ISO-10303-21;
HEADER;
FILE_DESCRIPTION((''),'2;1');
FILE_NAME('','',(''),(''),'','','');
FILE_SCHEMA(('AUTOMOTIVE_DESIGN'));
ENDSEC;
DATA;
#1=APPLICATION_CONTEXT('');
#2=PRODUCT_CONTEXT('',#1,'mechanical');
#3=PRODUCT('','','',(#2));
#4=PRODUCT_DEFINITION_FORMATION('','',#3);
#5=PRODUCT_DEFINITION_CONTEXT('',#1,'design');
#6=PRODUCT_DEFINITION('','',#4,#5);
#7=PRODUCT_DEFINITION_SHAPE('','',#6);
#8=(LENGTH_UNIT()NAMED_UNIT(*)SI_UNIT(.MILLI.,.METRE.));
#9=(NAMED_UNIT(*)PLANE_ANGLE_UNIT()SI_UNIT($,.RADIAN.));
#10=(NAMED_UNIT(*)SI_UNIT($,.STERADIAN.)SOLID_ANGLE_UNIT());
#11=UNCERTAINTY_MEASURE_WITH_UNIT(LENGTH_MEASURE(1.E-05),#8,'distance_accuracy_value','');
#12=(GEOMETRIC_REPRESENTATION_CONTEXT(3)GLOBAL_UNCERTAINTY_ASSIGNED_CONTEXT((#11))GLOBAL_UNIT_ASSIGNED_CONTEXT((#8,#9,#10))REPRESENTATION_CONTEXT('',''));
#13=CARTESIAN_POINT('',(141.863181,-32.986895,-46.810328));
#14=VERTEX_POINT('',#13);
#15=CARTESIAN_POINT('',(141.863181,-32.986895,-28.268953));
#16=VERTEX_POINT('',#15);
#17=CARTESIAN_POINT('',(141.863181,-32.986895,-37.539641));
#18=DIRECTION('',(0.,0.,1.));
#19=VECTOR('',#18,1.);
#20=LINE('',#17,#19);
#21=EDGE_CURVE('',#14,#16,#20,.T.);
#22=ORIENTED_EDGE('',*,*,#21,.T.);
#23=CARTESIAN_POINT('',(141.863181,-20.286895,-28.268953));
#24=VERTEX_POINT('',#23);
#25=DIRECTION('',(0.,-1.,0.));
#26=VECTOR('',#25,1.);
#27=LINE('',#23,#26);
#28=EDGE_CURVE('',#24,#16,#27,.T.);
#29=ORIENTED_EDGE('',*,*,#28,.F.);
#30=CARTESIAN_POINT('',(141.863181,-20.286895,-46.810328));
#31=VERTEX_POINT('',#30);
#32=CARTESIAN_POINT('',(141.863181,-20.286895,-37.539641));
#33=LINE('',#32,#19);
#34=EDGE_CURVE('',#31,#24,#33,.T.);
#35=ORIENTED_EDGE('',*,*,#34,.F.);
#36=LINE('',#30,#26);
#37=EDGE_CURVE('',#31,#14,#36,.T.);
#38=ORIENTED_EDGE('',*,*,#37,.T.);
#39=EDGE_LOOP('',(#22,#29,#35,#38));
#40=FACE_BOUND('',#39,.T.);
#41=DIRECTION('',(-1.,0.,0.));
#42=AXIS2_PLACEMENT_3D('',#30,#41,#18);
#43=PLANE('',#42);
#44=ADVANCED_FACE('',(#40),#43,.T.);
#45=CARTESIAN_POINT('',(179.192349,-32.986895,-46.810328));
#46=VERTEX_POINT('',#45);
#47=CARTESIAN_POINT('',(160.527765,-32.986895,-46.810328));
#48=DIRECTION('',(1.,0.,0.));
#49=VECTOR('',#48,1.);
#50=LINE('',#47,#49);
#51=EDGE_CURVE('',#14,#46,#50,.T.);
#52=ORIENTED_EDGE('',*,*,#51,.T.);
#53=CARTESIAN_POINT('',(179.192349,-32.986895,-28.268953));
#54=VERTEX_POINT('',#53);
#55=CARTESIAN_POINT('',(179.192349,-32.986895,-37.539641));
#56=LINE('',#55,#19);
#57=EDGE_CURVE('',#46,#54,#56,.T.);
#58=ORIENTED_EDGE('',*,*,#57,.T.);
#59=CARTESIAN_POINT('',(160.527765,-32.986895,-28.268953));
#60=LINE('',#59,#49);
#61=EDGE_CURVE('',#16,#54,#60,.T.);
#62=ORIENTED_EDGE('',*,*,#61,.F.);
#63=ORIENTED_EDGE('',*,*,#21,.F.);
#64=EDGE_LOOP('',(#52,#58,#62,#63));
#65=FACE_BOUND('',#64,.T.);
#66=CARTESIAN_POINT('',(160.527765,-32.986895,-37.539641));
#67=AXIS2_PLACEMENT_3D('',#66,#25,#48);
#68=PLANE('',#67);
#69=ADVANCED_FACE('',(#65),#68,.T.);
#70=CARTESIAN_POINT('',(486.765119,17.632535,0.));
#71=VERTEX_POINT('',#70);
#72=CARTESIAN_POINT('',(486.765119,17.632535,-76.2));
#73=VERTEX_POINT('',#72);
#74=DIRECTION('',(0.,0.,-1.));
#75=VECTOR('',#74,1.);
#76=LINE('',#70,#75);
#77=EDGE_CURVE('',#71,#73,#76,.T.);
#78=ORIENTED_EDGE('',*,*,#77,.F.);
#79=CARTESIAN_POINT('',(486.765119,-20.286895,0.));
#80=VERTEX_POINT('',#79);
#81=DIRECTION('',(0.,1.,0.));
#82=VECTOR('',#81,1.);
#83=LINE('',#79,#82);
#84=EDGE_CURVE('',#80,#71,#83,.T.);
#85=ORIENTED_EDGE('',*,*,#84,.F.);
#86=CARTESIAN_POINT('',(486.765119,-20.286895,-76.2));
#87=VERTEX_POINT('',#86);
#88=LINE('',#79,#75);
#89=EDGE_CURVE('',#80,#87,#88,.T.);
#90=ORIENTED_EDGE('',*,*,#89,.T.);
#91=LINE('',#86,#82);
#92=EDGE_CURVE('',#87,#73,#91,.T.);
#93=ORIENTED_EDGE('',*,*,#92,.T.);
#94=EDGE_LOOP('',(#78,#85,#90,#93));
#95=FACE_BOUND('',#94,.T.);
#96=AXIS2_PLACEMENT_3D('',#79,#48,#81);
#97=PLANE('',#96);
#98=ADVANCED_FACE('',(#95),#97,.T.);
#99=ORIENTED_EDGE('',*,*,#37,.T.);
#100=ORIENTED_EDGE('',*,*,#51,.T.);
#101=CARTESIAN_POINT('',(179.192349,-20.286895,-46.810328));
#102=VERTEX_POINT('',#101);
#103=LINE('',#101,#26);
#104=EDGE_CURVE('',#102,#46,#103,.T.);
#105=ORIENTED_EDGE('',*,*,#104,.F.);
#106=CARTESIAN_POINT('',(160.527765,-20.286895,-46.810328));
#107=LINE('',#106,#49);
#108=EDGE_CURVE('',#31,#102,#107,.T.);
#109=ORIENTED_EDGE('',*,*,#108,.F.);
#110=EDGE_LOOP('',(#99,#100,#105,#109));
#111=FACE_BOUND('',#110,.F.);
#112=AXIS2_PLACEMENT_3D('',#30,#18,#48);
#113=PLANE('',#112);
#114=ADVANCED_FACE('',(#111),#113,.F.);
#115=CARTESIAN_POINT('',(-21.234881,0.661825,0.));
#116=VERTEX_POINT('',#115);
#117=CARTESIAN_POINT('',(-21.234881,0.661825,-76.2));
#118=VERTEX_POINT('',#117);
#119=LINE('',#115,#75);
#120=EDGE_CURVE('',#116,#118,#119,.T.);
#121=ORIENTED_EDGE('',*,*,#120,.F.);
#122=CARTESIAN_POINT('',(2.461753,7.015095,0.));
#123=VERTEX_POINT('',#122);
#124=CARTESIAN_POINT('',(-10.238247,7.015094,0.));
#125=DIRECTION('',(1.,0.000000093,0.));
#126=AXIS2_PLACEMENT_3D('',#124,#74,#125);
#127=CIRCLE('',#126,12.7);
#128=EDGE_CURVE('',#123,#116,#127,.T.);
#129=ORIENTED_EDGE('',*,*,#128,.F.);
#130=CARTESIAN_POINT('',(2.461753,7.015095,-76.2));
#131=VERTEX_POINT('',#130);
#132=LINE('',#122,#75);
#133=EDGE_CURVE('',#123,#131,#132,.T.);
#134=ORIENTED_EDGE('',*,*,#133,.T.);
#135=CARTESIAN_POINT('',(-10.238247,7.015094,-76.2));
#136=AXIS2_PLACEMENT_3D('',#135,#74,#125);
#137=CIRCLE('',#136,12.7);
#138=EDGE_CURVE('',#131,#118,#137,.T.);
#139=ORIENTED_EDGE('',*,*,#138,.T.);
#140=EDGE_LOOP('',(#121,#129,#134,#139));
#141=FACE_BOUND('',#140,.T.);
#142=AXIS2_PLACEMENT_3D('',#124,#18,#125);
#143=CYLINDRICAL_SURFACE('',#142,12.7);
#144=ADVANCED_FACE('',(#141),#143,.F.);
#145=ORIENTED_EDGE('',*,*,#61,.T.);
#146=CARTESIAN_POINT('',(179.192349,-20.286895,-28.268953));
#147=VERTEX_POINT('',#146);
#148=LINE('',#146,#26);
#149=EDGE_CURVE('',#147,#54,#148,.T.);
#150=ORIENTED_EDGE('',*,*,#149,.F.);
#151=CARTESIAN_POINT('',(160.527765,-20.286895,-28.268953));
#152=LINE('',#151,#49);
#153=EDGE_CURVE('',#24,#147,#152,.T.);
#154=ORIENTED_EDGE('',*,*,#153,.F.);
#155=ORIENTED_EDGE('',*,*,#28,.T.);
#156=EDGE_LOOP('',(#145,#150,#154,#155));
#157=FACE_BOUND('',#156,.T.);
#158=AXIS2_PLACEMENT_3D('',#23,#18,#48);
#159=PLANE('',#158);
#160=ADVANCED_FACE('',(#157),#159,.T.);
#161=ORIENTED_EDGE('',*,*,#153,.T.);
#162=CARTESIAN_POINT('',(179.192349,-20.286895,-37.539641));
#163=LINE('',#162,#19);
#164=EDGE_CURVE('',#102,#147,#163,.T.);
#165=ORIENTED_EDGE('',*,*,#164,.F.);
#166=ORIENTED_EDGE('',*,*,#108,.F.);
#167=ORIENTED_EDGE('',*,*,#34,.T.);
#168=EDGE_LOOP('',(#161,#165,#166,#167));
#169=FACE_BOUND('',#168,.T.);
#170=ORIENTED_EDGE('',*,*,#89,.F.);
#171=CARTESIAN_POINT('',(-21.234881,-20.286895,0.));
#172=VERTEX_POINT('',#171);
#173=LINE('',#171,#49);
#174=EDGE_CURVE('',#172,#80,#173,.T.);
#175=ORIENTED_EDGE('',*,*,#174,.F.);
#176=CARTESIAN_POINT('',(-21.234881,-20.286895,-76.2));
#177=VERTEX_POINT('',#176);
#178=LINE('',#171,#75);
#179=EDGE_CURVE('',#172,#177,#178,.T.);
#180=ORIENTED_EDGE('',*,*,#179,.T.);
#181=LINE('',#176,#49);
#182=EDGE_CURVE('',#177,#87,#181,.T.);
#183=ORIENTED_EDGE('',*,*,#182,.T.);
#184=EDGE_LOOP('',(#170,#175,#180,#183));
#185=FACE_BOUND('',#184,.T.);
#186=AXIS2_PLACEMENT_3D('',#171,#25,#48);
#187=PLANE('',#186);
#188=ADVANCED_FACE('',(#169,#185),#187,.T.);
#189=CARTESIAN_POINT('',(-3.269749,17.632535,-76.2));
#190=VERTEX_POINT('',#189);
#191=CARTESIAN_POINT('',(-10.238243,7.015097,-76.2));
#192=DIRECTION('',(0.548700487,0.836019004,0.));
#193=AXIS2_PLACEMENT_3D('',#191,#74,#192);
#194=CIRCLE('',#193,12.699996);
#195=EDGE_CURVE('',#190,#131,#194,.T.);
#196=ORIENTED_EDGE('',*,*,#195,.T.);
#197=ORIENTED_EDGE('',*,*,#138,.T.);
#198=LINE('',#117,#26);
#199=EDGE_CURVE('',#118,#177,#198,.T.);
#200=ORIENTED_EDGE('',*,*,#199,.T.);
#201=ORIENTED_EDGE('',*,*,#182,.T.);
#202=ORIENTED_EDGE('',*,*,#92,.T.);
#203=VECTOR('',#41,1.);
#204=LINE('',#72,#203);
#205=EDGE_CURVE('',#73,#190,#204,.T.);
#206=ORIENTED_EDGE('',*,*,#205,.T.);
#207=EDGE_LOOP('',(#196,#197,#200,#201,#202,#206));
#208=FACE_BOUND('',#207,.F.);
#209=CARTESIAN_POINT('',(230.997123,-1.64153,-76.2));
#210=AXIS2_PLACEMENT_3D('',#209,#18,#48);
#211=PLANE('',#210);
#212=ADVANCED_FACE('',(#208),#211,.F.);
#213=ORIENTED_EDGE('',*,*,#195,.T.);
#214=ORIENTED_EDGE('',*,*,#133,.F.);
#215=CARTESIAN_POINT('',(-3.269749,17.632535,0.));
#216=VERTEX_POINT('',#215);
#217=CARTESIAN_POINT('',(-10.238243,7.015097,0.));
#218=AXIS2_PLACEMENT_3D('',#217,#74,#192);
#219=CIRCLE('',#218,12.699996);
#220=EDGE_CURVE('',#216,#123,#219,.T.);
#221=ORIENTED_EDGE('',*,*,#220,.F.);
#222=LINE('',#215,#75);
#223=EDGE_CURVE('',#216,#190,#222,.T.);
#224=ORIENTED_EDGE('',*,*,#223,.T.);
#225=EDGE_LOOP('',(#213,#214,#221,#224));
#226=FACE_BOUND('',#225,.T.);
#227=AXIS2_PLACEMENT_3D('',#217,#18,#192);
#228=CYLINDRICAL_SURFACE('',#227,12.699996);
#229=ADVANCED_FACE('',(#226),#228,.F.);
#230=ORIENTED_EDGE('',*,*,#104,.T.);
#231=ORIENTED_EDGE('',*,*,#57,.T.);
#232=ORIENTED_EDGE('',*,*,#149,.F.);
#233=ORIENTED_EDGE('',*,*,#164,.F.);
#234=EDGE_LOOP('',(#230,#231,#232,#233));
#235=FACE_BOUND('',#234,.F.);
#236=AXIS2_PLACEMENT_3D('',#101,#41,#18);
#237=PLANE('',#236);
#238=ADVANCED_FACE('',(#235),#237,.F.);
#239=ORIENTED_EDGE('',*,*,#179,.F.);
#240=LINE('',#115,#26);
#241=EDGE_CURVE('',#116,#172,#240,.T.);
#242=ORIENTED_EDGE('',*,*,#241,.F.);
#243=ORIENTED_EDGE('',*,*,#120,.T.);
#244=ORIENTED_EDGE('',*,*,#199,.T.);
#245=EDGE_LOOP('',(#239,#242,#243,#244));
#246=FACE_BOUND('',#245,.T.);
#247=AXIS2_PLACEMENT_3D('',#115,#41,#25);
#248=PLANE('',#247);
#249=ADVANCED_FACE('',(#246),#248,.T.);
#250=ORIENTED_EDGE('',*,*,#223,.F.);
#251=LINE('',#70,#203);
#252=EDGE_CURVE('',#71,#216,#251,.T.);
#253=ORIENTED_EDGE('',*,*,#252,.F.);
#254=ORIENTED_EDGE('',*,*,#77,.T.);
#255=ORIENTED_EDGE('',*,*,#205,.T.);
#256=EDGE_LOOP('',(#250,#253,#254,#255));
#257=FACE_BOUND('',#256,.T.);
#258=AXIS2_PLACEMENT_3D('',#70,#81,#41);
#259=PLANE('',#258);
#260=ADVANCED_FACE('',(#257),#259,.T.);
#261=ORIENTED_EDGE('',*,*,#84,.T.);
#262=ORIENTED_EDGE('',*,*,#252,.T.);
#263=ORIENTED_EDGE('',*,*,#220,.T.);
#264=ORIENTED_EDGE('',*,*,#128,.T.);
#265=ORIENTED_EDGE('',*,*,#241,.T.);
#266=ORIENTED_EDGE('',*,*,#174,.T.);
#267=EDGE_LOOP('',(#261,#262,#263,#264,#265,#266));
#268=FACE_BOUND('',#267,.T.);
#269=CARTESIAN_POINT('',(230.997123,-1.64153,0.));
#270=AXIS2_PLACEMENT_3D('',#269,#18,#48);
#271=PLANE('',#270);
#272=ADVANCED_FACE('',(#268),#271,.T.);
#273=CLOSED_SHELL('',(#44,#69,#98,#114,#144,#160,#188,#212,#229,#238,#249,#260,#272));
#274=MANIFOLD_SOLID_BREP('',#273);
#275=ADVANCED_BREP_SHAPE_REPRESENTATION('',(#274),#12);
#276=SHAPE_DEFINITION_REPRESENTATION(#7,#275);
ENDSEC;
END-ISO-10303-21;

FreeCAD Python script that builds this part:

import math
import FreeCAD as App
import Part
import Sketcher
from FreeCAD import Vector
Q = App.Units.Quantity

doc = App.newDocument("Part")
body = doc.addObject("PartDesign::Body", "Body")

sketch1 = doc.addObject("Sketcher::SketchObject", "Sketch")
body.addObject(sketch1)
sketch1.AttachmentSupport = (doc.XY_Plane, [""])
sketch1.MapMode = "FlatFace"
sketch1.addGeometry(Part.LineSegment(Vector(486.765119, 17.632535, 0), Vector(-3.269749, 17.632535, 0)), False)
sketch1.addGeometry(Part.ArcOfCircle(Part.Circle(Vector(-10.238243, 7.015097, 0), Vector(0, 0, 1), 12.699996), math.radians(-0.000009), math.radians(56.722093)), False)
sketch1.addGeometry(Part.ArcOfCircle(Part.Circle(Vector(-10.238247, 7.015094, 0), Vector(0, 0, 1), 12.7), math.radians(-149.982969), math.radians(0.000005)), False)
sketch1.addGeometry(Part.LineSegment(Vector(-21.234881, 0.661825, 0), Vector(-21.234881, -20.286895, 0)), False)
sketch1.addGeometry(Part.LineSegment(Vector(-21.234881, -20.286895, 0), Vector(486.765119, -20.286895, 0)), False)
sketch1.addGeometry(Part.LineSegment(Vector(486.765119, -20.286895, 0), Vector(486.765119, 17.632535, 0)), False)
sketch1.addConstraint(Sketcher.Constraint("Coincident", 0, 2, 1, 2))
sketch1.addConstraint(Sketcher.Constraint("Tangent", 1, 1, 2, 2))
sketch1.addConstraint(Sketcher.Constraint("Coincident", 2, 1, 3, 1))
sketch1.addConstraint(Sketcher.Constraint("Coincident", 3, 2, 4, 1))
sketch1.addConstraint(Sketcher.Constraint("Coincident", 4, 2, 5, 1))
sketch1.addConstraint(Sketcher.Constraint("Coincident", 5, 2, 0, 1))
sketch1.addConstraint(Sketcher.Constraint("Horizontal", 0))
sketch1.addConstraint(Sketcher.Constraint("Vertical", 3))
sketch1.addConstraint(Sketcher.Constraint("Horizontal", 4))
sketch1.addConstraint(Sketcher.Constraint("Vertical", 5))
sketch1.addConstraint(Sketcher.Constraint("Horizontal", 2, 3, 1, 1))
sketch1.addConstraint(Sketcher.Constraint("Radius", 1, Q("0.4999998 in")))
sketch1.addConstraint(Sketcher.Constraint("Radius", 2, Q("0.5 in")))
sketch1.addConstraint(Sketcher.Constraint("DistanceX", 4, 1, 4, 2, Q("20 in")))
sketch1.addConstraint(Sketcher.Constraint("DistanceX", 0, 2, 0, 1, Q("490.034868 mm")))
sketch1.addConstraint(Sketcher.Constraint("DistanceY", 3, 2, 3, 1, Q("20.94872 mm")))
sketch1.addConstraint(Sketcher.Constraint("DistanceY", 5, 1, 5, 2, Q("37.91943 mm")))
sketch1.addConstraint(Sketcher.Constraint("DistanceX", 0, 2, -1, 1, Q("3.269749 mm")))
sketch1.addConstraint(Sketcher.Constraint("DistanceY", -1, 1, 1, 3, Q("7.015097 mm")))
pad1 = doc.addObject("PartDesign::Pad", "Pad")
body.addObject(pad1)
pad1.Profile = sketch1
pad1.Length = Q("3 in")
pad1.Reversed = True

sketch2 = doc.addObject("Sketcher::SketchObject", "Sketch001")
body.addObject(sketch2)
sketch2.AttachmentSupport = (doc.XZ_Plane, [""])
sketch2.MapMode = "FlatFace"
sketch2.AttachmentOffset = App.Placement(Vector(0, 0, 20.286895), App.Rotation())
sketch2.addGeometry(Part.LineSegment(Vector(141.863181, -28.268953, 0), Vector(141.863181, -46.810328, 0)), False)
sketch2.addGeometry(Part.LineSegment(Vector(141.863181, -46.810328, 0), Vector(179.192349, -46.810328, 0)), False)
sketch2.addGeometry(Part.LineSegment(Vector(179.192349, -46.810328, 0), Vector(179.192349, -28.268953, 0)), False)
sketch2.addGeometry(Part.LineSegment(Vector(179.192349, -28.268953, 0), Vector(141.863181, -28.268953, 0)), False)
sketch2.addConstraint(Sketcher.Constraint("Coincident", 0, 2, 1, 1))
sketch2.addConstraint(Sketcher.Constraint("Coincident", 1, 2, 2, 1))
sketch2.addConstraint(Sketcher.Constraint("Coincident", 2, 2, 3, 1))
sketch2.addConstraint(Sketcher.Constraint("Coincident", 3, 2, 0, 1))
sketch2.addConstraint(Sketcher.Constraint("Vertical", 0))
sketch2.addConstraint(Sketcher.Constraint("Horizontal", 1))
sketch2.addConstraint(Sketcher.Constraint("Vertical", 2))
sketch2.addConstraint(Sketcher.Constraint("Horizontal", 3))
sketch2.addConstraint(Sketcher.Constraint("DistanceX", 1, 1, 1, 2, Q("37.329167 mm")))
sketch2.addConstraint(Sketcher.Constraint("DistanceY", 0, 2, 0, 1, Q("18.541375 mm")))
sketch2.addConstraint(Sketcher.Constraint("DistanceX", -1, 1, 0, 2, Q("141.863181 mm")))
sketch2.addConstraint(Sketcher.Constraint("DistanceY", 0, 2, -1, 1, Q("46.810328 mm")))
pad2 = doc.addObject("PartDesign::Pad", "Pad001")
body.addObject(pad2)
pad2.Profile = sketch2
pad2.Length = Q("0.5 in")

doc.recompute()
